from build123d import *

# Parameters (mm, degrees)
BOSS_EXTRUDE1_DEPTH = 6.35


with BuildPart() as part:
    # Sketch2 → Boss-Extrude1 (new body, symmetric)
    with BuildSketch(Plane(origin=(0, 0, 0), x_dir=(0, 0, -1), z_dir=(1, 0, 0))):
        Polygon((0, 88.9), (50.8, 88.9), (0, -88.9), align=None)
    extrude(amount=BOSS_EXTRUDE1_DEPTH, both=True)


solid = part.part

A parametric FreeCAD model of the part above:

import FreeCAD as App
import Part
import Sketcher
from FreeCAD import Vector
Q = App.Units.Quantity

doc = App.newDocument("Part")
body = doc.addObject("PartDesign::Body", "Body")

# Sketch on YZ plane
sketch1 = doc.addObject("Sketcher::SketchObject", "Sketch")
body.addObject(sketch1)
sketch1.AttachmentSupport = (doc.YZ_Plane, [""])
sketch1.MapMode = "FlatFace"
sketch1.addGeometry(Part.LineSegment(Vector(89, -51, 0), Vector(89, 0, 0)), False)
sketch1.addGeometry(Part.LineSegment(Vector(89, 0, 0), Vector(-89, 0, 0)), False)
sketch1.addGeometry(Part.LineSegment(Vector(-89, 0, 0), Vector(89, -51, 0)), False)
sketch1.addConstraint(Sketcher.Constraint("Coincident", 0, 2, 1, 1))
sketch1.addConstraint(Sketcher.Constraint("Coincident", 1, 2, 2, 1))
sketch1.addConstraint(Sketcher.Constraint("Coincident", 2, 2, 0, 1))
sketch1.addConstraint(Sketcher.Constraint("Vertical", 0))
sketch1.addConstraint(Sketcher.Constraint("Horizontal", 1))
sketch1.addConstraint(Sketcher.Constraint("Symmetric", 0, 2, 1, 2, -1, 1))
sketch1.addConstraint(Sketcher.Constraint("DistanceX", 1, 2, 1, 1, Q("7 in")))
sketch1.addConstraint(Sketcher.Constraint("DistanceY", 0, 1, 0, 2, Q("2 in")))
pad1 = doc.addObject("PartDesign::Pad", "Pad")
body.addObject(pad1)
pad1.Profile = sketch1
pad1.Length = Q("0.5 in")
pad1.Midplane = True

doc.recompute()
